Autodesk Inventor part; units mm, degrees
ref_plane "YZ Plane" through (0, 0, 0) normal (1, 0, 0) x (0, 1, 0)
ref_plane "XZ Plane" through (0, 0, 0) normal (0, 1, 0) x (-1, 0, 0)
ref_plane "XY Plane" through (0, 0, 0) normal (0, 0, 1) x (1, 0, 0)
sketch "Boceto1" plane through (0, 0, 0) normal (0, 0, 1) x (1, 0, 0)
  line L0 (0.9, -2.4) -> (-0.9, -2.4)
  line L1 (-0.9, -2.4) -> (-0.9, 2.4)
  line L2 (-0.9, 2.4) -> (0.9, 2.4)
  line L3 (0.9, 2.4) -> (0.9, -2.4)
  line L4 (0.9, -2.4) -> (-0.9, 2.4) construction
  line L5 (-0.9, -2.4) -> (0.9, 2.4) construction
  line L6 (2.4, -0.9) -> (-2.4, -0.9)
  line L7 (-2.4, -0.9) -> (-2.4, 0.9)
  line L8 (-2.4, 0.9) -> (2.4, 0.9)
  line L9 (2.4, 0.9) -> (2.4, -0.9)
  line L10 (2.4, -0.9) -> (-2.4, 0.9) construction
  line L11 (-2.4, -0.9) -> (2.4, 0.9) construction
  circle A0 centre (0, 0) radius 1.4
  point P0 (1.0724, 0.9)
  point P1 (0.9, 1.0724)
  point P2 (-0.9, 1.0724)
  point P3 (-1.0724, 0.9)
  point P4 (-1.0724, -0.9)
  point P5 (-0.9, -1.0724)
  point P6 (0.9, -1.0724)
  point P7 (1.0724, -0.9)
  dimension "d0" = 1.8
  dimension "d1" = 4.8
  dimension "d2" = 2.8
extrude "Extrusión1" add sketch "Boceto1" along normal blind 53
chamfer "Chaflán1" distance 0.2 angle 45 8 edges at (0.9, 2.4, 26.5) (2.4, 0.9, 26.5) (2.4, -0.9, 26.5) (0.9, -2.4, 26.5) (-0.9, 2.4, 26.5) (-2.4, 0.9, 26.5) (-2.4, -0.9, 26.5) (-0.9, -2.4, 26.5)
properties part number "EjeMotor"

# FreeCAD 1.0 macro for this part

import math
import FreeCAD as App
import Part
import Sketcher

V = App.Vector
Q = App.Units.Quantity


def edges_at(feature, points):
    """Names of the edges that pass closest to the given points."""
    edges = feature.Shape.Edges
    near = lambda p: min(range(len(edges)), key=lambda i: edges[i].distToShape(Part.Vertex(*p))[0])
    return sorted({f"Edge{near(p) + 1}" for p in points})

doc = App.newDocument("Part")
body = doc.addObject("PartDesign::Body", "Body")

# Sketch on XY plane
sketch1 = body.newObject("Sketcher::SketchObject", "Sketch")
sketch1.AttachmentSupport = (doc.getObject("XY_Plane"), [""])
sketch1.MapMode = "FlatFace"
sketch1.addGeometry([
    Part.LineSegment(V(-0.9, -2.4, 0), V(0.9, -2.4, 0)),  # 0
    Part.LineSegment(V(0.9, -2.4, 0), V(0.9, -1.07, 0)),  # 1
    Part.ArcOfCircle(Part.Circle(V(0, 0, 0), V(0, 0, 1), 1.4), math.radians(-49.99), math.radians(-40.01)),  # 2
    Part.LineSegment(V(1.07, -0.9, 0), V(2.4, -0.9, 0)),  # 3
    Part.LineSegment(V(2.4, -0.9, 0), V(2.4, 0.9, 0)),  # 4
    Part.LineSegment(V(2.4, 0.9, 0), V(1.07, 0.9, 0)),  # 5
    Part.ArcOfCircle(Part.Circle(V(0, 0, 0), V(0, 0, 1), 1.4), math.radians(40.01), math.radians(49.99)),  # 6
    Part.LineSegment(V(0.9, 1.07, 0), V(0.9, 2.4, 0)),  # 7
    Part.LineSegment(V(0.9, 2.4, 0), V(-0.9, 2.4, 0)),  # 8
    Part.LineSegment(V(-0.9, 2.4, 0), V(-0.9, 1.07, 0)),  # 9
    Part.ArcOfCircle(Part.Circle(V(0, 0, 0), V(0, 0, 1), 1.4), math.radians(130.01), math.radians(139.99)),  # 10
    Part.LineSegment(V(-1.07, 0.9, 0), V(-2.4, 0.9, 0)),  # 11
    Part.LineSegment(V(-2.4, 0.9, 0), V(-2.4, -0.9, 0)),  # 12
    Part.LineSegment(V(-2.4, -0.9, 0), V(-1.07, -0.9, 0)),  # 13
    Part.ArcOfCircle(Part.Circle(V(0, 0, 0), V(0, 0, 1), 1.4), math.radians(-139.99), math.radians(-130.01)),  # 14
    Part.LineSegment(V(-0.9, -1.07, 0), V(-0.9, -2.4, 0)),  # 15
], False)
sketch1.addConstraint([
    Sketcher.Constraint("Coincident", 0, 2, 1, 1),
    Sketcher.Constraint("Coincident", 1, 2, 2, 1),
    Sketcher.Constraint("Coincident", 2, 2, 3, 1),
    Sketcher.Constraint("Coincident", 3, 2, 4, 1),
    Sketcher.Constraint("Coincident", 4, 2, 5, 1),
    Sketcher.Constraint("Coincident", 5, 2, 6, 1),
    Sketcher.Constraint("Coincident", 6, 2, 7, 1),
    Sketcher.Constraint("Coincident", 7, 2, 8, 1),
    Sketcher.Constraint("Coincident", 8, 2, 9, 1),
    Sketcher.Constraint("Coincident", 9, 2, 10, 1),
    Sketcher.Constraint("Coincident", 10, 2, 11, 1),
    Sketcher.Constraint("Coincident", 11, 2, 12, 1),
    Sketcher.Constraint("Coincident", 12, 2, 13, 1),
    Sketcher.Constraint("Coincident", 13, 2, 14, 1),
    Sketcher.Constraint("Coincident", 14, 2, 15, 1),
    Sketcher.Constraint("Coincident", 15, 2, 0, 1),
    Sketcher.Constraint("Horizontal", 0),
    Sketcher.Constraint("Vertical", 1),
    Sketcher.Constraint("Horizontal", 3),
    Sketcher.Constraint("Vertical", 4),
    Sketcher.Constraint("Horizontal", 5),
    Sketcher.Constraint("Vertical", 7),
    Sketcher.Constraint("Horizontal", 8),
    Sketcher.Constraint("Vertical", 9),
    Sketcher.Constraint("Horizontal", 11),
    Sketcher.Constraint("Vertical", 12),
    Sketcher.Constraint("Horizontal", 13),
    Sketcher.Constraint("Vertical", 15),
    Sketcher.Constraint("Coincident", 2, 3, -1, 1),
    Sketcher.Constraint("Coincident", 6, 3, -1, 1),
    Sketcher.Constraint("Coincident", 10, 3, -1, 1),
    Sketcher.Constraint("Coincident", 14, 3, -1, 1),
    Sketcher.Constraint("Equal", 2, 6),
    Sketcher.Constraint("Equal", 6, 10),
    Sketcher.Constraint("Equal", 10, 14),
    Sketcher.Constraint("Symmetric", 0, 2, 8, 2, -1, 1),
    Sketcher.Constraint("Symmetric", 3, 2, 11, 2, -1, 1),
    Sketcher.Constraint("Horizontal", 6, 2, 9, 2),
    Sketcher.Constraint("Horizontal", 5, 2, 10, 2),
    Sketcher.Constraint("Horizontal", 3, 2, 12, 2),
    Sketcher.Constraint("Horizontal", 1, 2, 14, 2),
    Sketcher.Constraint("Equal", 13, 1),
    Sketcher.Constraint("Equal", 8, 4),
    Sketcher.Constraint("Radius", 2, Q("1.4 mm")),
    Sketcher.Constraint("DistanceX", 0, 1, 0, 2, Q("1.8 mm")),
    Sketcher.Constraint("DistanceY", 0, 2, -1, 1, Q("2.4 mm")),
])
pad1 = body.newObject("PartDesign::Pad", "Pad")
pad1.Profile = sketch1
pad1.Length = 53
doc.recompute()

chamfer = body.newObject("PartDesign::Chamfer", "Chamfer")
chamfer.Base = (pad1, edges_at(pad1, [
    (0.9, 2.4, 26.5),
    (2.4, 0.9, 26.5),
    (2.4, -0.9, 26.5),
    (0.9, -2.4, 26.5),
    (-0.9, 2.4, 26.5),
    (-2.4, 0.9, 26.5),
    (-2.4, -0.9, 26.5),
    (-0.9, -2.4, 26.5),
]))
chamfer.Size = 0.2

doc.recompute()
